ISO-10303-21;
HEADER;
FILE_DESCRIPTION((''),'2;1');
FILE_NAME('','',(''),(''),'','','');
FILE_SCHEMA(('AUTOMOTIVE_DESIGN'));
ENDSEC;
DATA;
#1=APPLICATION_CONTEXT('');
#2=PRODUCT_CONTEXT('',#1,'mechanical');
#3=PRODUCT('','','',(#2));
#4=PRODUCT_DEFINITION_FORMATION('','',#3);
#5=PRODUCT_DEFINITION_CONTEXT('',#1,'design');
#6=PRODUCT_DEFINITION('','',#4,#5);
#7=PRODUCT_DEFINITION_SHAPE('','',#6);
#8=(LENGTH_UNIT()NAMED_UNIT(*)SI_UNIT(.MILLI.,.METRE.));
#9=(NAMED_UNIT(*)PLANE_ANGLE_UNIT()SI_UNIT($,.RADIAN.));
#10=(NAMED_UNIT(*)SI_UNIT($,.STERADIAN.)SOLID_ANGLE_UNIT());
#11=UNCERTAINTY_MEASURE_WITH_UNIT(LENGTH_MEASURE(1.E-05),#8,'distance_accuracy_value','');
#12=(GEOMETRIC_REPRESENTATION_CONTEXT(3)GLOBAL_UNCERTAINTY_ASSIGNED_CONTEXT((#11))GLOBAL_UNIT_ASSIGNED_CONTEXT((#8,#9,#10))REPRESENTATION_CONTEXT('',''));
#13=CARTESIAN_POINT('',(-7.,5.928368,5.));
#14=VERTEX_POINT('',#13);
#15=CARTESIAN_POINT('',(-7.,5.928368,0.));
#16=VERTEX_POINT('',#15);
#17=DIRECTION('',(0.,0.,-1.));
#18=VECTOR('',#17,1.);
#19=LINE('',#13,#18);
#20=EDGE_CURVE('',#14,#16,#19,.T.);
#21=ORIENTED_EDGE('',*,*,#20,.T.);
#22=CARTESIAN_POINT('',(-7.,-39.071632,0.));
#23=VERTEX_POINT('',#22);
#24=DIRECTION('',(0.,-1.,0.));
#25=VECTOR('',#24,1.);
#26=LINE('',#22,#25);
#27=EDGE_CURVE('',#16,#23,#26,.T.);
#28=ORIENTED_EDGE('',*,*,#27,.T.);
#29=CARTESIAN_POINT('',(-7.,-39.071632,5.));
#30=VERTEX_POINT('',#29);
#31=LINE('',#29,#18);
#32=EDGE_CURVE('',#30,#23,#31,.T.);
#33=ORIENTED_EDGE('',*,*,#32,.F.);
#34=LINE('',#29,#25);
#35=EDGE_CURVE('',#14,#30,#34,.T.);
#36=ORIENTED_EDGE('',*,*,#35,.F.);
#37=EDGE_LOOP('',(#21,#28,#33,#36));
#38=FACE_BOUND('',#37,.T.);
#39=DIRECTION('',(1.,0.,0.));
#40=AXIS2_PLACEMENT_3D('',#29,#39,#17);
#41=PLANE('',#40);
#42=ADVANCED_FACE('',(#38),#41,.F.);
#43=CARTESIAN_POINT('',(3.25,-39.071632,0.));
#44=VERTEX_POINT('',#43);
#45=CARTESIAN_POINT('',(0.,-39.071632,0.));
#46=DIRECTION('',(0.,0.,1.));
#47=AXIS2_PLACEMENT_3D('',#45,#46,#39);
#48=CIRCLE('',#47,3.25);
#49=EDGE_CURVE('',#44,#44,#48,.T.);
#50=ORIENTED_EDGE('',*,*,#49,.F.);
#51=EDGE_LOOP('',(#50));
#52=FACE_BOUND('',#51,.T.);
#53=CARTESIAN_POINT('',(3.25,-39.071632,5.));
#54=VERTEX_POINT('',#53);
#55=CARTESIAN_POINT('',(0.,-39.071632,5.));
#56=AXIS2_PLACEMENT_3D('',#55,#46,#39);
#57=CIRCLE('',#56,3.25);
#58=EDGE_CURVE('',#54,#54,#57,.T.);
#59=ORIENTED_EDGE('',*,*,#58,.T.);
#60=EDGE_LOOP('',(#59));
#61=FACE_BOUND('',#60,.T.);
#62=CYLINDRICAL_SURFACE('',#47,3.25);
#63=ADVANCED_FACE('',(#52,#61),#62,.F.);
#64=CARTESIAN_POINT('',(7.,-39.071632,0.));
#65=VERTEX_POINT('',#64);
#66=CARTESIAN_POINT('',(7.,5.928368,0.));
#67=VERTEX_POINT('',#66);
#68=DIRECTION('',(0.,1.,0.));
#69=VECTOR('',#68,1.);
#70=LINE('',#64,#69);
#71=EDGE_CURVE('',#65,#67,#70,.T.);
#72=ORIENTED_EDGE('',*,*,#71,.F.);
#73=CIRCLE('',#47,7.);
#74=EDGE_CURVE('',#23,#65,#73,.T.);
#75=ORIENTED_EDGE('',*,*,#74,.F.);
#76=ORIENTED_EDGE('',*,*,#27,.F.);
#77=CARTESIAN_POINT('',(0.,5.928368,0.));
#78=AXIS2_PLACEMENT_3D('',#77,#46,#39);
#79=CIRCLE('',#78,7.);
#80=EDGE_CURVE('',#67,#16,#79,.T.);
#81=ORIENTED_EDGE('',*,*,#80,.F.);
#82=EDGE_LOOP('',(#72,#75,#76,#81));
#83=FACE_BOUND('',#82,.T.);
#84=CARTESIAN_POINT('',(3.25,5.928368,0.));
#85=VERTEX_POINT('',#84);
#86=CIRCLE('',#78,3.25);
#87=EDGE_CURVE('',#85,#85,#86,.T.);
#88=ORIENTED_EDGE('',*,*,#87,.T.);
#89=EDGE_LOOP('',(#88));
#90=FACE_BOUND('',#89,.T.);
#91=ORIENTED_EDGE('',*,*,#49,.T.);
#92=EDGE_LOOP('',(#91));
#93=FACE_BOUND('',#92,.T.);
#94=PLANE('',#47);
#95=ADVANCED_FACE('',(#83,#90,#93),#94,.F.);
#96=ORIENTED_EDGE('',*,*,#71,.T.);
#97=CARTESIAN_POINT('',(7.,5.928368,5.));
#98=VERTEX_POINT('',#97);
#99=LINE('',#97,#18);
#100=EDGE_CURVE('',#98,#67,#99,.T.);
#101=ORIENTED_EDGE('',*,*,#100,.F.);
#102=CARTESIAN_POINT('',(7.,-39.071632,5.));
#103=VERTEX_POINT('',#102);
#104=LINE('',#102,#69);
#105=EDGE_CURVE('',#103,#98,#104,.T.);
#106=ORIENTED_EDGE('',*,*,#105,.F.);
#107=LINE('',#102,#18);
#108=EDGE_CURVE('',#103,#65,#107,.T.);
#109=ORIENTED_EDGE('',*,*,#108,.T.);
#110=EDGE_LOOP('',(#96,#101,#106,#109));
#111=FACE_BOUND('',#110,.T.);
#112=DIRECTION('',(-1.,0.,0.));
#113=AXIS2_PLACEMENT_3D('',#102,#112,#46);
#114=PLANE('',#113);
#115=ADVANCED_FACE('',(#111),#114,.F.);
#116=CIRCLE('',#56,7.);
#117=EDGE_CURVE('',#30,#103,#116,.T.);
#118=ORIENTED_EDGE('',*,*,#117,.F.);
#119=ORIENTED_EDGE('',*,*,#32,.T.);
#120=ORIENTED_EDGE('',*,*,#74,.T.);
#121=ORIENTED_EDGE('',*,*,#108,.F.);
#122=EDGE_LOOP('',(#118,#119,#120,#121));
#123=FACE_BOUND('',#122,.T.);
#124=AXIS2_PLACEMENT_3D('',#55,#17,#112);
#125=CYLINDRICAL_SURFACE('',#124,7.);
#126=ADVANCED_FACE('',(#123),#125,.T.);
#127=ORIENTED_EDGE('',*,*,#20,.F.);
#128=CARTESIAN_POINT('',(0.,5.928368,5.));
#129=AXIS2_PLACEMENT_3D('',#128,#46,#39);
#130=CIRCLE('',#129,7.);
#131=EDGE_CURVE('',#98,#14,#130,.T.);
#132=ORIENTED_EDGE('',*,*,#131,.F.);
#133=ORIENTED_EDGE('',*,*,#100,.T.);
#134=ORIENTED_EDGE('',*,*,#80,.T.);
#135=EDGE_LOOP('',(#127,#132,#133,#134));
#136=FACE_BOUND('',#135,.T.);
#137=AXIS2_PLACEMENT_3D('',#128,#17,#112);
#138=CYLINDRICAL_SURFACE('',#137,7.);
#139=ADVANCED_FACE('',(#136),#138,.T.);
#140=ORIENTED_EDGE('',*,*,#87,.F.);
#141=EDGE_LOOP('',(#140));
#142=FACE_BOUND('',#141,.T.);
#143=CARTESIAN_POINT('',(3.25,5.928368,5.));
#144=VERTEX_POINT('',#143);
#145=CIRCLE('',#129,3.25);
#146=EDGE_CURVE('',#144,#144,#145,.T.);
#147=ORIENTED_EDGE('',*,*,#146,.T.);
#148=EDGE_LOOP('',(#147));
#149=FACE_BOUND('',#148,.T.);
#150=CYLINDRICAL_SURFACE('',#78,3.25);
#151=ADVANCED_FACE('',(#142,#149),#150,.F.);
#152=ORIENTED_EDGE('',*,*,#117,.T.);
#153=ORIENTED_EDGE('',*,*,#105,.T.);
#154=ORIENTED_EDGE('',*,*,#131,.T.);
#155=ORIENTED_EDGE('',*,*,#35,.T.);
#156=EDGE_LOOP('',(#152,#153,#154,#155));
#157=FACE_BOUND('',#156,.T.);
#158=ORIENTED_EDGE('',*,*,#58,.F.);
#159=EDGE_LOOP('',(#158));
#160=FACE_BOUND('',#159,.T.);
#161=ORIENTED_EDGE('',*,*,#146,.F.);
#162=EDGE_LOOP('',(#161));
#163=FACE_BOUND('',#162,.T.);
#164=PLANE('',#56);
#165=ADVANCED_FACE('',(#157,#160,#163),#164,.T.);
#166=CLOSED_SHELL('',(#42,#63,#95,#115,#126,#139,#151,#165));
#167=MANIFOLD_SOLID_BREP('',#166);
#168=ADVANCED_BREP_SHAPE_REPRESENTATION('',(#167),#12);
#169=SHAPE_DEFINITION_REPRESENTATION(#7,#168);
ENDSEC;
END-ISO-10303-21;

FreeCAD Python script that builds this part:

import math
import FreeCAD as App
import Part
import Sketcher
Q = App.Units.Quantity

doc = App.newDocument("Part")
params = doc.addObject("Spreadsheet::Sheet", "Params")
for row, (alias, value) in enumerate([
    ("sketch1_radius", "7 mm"),
    ("sketch1_height", "45 mm"),
    ("pad1_length", "5 mm"),
    ("sketch2_diameter", "6.5 mm"),
], start=1):
    params.set(f"A{row}", alias)
    params.set(f"B{row}", "=" + value)
    params.setAlias(f"B{row}", alias)

body = doc.addObject("PartDesign::Body", "Body")

sketch1 = body.newObject("Sketcher::SketchObject", "Sketch")
sketch1.AttachmentSupport = (doc.getObject("XY_Plane"), [""])
sketch1.MapMode = "FlatFace"
sketch1.addGeometry(Part.LineSegment(App.Vector(-7, 5.928368, 0), App.Vector(-7, -39.071632, 0)), False)
sketch1.addGeometry(Part.ArcOfCircle(Part.Circle(App.Vector(0, -39.071632, 0), App.Vector(0, 0, 1), 7), math.radians(180), math.radians(360)), False)
sketch1.addGeometry(Part.LineSegment(App.Vector(7, -39.071632, 0), App.Vector(7, 5.928368, 0)), False)
sketch1.addGeometry(Part.ArcOfCircle(Part.Circle(App.Vector(0, 5.928368, 0), App.Vector(0, 0, 1), 7), math.radians(0), math.radians(180)), False)
sketch1.addConstraint(Sketcher.Constraint("Tangent", 0, 2, 1, 1))
sketch1.addConstraint(Sketcher.Constraint("Tangent", 1, 2, 2, 1))
sketch1.addConstraint(Sketcher.Constraint("Tangent", 2, 2, 3, 1))
sketch1.addConstraint(Sketcher.Constraint("Tangent", 3, 2, 0, 1))
sketch1.addConstraint(Sketcher.Constraint("Vertical", 0))
sketch1.addConstraint(Sketcher.Constraint("Vertical", 2))
sketch1.addConstraint(Sketcher.Constraint("PointOnObject", 1, 3, -2))
sketch1.addConstraint(Sketcher.Constraint("Radius", 1, Q("7 mm")))
sketch1.addConstraint(Sketcher.Constraint("DistanceY", 0, 2, 0, 1, Q("45 mm")))
sketch1.addConstraint(Sketcher.Constraint("DistanceY", 1, 3, -1, 1, Q("39.071632 mm")))
sketch1.setExpression("Constraints[7]", "Params.sketch1_radius")
sketch1.setExpression("Constraints[8]", "Params.sketch1_height")
pad1 = body.newObject("PartDesign::Pad", "Pad")
pad1.Profile = sketch1
pad1.setExpression("Length", "Params.pad1_length")

sketch2 = body.newObject("Sketcher::SketchObject", "Sketch001")
sketch2.AttachmentSupport = (doc.getObject("XY_Plane"), [""])
sketch2.MapMode = "FlatFace"
sketch2.AttachmentOffset = App.Placement(App.Vector(0, 0, 5), App.Rotation())
sketch2.addGeometry(Part.Circle(App.Vector(0, 5.928368, 0), App.Vector(0, 0, 1), 3.25), False)
sketch2.addGeometry(Part.Circle(App.Vector(0, -39.071632, 0), App.Vector(0, 0, 1), 3.25), False)
sketch2.addConstraint(Sketcher.Constraint("Equal", 0, 1))
sketch2.addConstraint(Sketcher.Constraint("PointOnObject", 0, 3, -2))
sketch2.addConstraint(Sketcher.Constraint("PointOnObject", 1, 3, -2))
sketch2.addConstraint(Sketcher.Constraint("Diameter", 0, Q("6.5 mm")))
sketch2.addConstraint(Sketcher.Constraint("DistanceY", 1, 3, 0, 3, Q("45 mm")))
sketch2.addConstraint(Sketcher.Constraint("DistanceY", -1, 1, 0, 3, Q("5.928368 mm")))
sketch2.setExpression("Constraints[3]", "Params.sketch2_diameter")
pocket1 = body.newObject("PartDesign::Pocket", "Pocket")
pocket1.Profile = sketch2
pocket1.Type = "ThroughAll"

doc.recompute()
